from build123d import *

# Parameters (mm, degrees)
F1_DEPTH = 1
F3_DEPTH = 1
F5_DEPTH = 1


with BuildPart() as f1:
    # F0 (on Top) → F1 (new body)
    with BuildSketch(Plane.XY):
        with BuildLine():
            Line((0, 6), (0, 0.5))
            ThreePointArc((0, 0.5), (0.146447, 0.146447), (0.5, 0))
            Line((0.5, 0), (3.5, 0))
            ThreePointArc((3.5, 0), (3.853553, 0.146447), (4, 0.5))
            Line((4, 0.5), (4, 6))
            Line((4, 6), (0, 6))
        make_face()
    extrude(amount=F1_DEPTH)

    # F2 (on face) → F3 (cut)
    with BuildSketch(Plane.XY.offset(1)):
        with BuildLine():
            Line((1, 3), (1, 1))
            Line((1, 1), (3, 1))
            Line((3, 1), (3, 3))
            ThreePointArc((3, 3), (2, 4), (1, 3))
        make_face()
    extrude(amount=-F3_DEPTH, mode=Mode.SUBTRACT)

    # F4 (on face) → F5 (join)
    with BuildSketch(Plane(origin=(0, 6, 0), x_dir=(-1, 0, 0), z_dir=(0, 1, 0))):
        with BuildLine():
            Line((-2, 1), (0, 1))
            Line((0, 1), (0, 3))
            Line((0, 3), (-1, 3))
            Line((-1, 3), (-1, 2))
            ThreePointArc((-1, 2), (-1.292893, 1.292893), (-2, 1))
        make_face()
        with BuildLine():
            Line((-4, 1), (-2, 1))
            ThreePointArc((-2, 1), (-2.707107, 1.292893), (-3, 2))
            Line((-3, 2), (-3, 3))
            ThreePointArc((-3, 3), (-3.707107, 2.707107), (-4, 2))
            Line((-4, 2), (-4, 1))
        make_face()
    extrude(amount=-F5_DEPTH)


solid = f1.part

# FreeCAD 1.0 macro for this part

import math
import FreeCAD as App
import Part
import Sketcher

V = App.Vector
Q = App.Units.Quantity

doc = App.newDocument("Part")
body = doc.addObject("PartDesign::Body", "Body")

sketch1 = body.newObject("Sketcher::SketchObject", "Sketch")
sketch1.AttachmentSupport = (doc.getObject("XY_Plane"), [""])
sketch1.MapMode = "FlatFace"
sketch1.addGeometry(Part.LineSegment(V(0, 6, 0), V(0, 0.5, 0)), False)
sketch1.addGeometry(Part.ArcOfCircle(Part.Circle(V(0.500001, 0.500001, 0), V(0, 0, 1), 0.500001), math.radians(-179.999847), math.radians(-90.000153)), False)
sketch1.addGeometry(Part.LineSegment(V(0.5, 0, 0), V(3.5, 0, 0)), False)
sketch1.addGeometry(Part.ArcOfCircle(Part.Circle(V(3.499999, 0.500001, 0), V(0, 0, 1), 0.500001), math.radians(-89.999847), math.radians(-0.000153)), False)
sketch1.addGeometry(Part.LineSegment(V(4, 0.5, 0), V(4, 6, 0)), False)
sketch1.addGeometry(Part.LineSegment(V(4, 6, 0), V(0, 6, 0)), False)
sketch1.addConstraint(Sketcher.Constraint("Coincident", 0, 2, 1, 1))
sketch1.addConstraint(Sketcher.Constraint("Coincident", 1, 2, 2, 1))
sketch1.addConstraint(Sketcher.Constraint("Coincident", 2, 2, 3, 1))
sketch1.addConstraint(Sketcher.Constraint("Coincident", 3, 2, 4, 1))
sketch1.addConstraint(Sketcher.Constraint("Coincident", 4, 2, 5, 1))
sketch1.addConstraint(Sketcher.Constraint("Coincident", 5, 2, 0, 1))
sketch1.addConstraint(Sketcher.Constraint("Vertical", 0))
sketch1.addConstraint(Sketcher.Constraint("Horizontal", 2))
sketch1.addConstraint(Sketcher.Constraint("Vertical", 4))
sketch1.addConstraint(Sketcher.Constraint("Horizontal", 5))
sketch1.addConstraint(Sketcher.Constraint("Equal", 1, 3))
sketch1.addConstraint(Sketcher.Constraint("PointOnObject", 0, 2, -2))
sketch1.addConstraint(Sketcher.Constraint("PointOnObject", 1, 2, -1))
sketch1.addConstraint(Sketcher.Constraint("Horizontal", 3, 3, 0, 2))
sketch1.addConstraint(Sketcher.Constraint("Horizontal", 0, 2, 3, 2))
sketch1.addConstraint(Sketcher.Constraint("Vertical", 3, 3, 2, 2))
sketch1.addConstraint(Sketcher.Constraint("Radius", 1, Q("0.500001 mm")))
sketch1.addConstraint(Sketcher.Constraint("DistanceX", 2, 1, 2, 2, Q("3 mm")))
sketch1.addConstraint(Sketcher.Constraint("DistanceX", 5, 2, 5, 1, Q("4 mm")))
sketch1.addConstraint(Sketcher.Constraint("DistanceY", 0, 2, 0, 1, Q("5.5 mm")))
pad1 = body.newObject("PartDesign::Pad", "Pad")
pad1.Profile = sketch1
pad1.Length = 1

sketch2 = body.newObject("Sketcher::SketchObject", "Sketch001")
sketch2.AttachmentSupport = (doc.getObject("XY_Plane"), [""])
sketch2.MapMode = "FlatFace"
sketch2.AttachmentOffset = App.Placement(V(0, 0, 1), App.Rotation())
sketch2.addGeometry(Part.LineSegment(V(1, 3, 0), V(1, 1, 0)), False)
sketch2.addGeometry(Part.LineSegment(V(1, 1, 0), V(3, 1, 0)), False)
sketch2.addGeometry(Part.LineSegment(V(3, 1, 0), V(3, 3, 0)), False)
sketch2.addGeometry(Part.ArcOfCircle(Part.Circle(V(2, 3, 0), V(0, 0, 1), 1), math.radians(0), math.radians(180)), False)
sketch2.addConstraint(Sketcher.Constraint("Coincident", 0, 2, 1, 1))
sketch2.addConstraint(Sketcher.Constraint("Coincident", 1, 2, 2, 1))
sketch2.addConstraint(Sketcher.Constraint("Tangent", 2, 2, 3, 1))
sketch2.addConstraint(Sketcher.Constraint("Tangent", 3, 2, 0, 1))
sketch2.addConstraint(Sketcher.Constraint("Vertical", 0))
sketch2.addConstraint(Sketcher.Constraint("Horizontal", 1))
sketch2.addConstraint(Sketcher.Constraint("Vertical", 2))
sketch2.addConstraint(Sketcher.Constraint("Equal", 1, 0))
sketch2.addConstraint(Sketcher.Constraint("Radius", 3, Q("1 mm")))
sketch2.addConstraint(Sketcher.Constraint("DistanceX", -1, 1, 3, 3, Q("2 mm")))
sketch2.addConstraint(Sketcher.Constraint("DistanceY", -1, 1, 3, 3, Q("3 mm")))
pocket1 = body.newObject("PartDesign::Pocket", "Pocket")
pocket1.Profile = sketch2
pocket1.Length = 1

sketch3 = body.newObject("Sketcher::SketchObject", "Sketch002")
sketch3.AttachmentSupport = (doc.getObject("XZ_Plane"), [""])
sketch3.MapMode = "FlatFace"
sketch3.AttachmentOffset = App.Placement(V(0, 0, -6), App.Rotation())
sketch3.addGeometry(Part.LineSegment(V(2, 1, 0), V(0, 1, 0)), False)
sketch3.addGeometry(Part.LineSegment(V(0, 1, 0), V(0, 3, 0)), False)
sketch3.addGeometry(Part.LineSegment(V(0, 3, 0), V(1, 3, 0)), False)
sketch3.addGeometry(Part.LineSegment(V(1, 3, 0), V(1, 2, 0)), False)
sketch3.addGeometry(Part.ArcOfCircle(Part.Circle(V(1.999999, 1.999999, 0), V(0, 0, 1), 0.999999), math.radians(179.999957), math.radians(270.000043)), False)
sketch3.addGeometry(Part.LineSegment(V(4, 1, 0), V(2, 1, 0)), False)
sketch3.addGeometry(Part.ArcOfCircle(Part.Circle(V(2.000001, 1.999999, 0), V(0, 0, 1), 0.999999), math.radians(-90.000043), math.radians(0.000043)), False)
sketch3.addGeometry(Part.LineSegment(V(3, 2, 0), V(3, 3, 0)), False)
sketch3.addGeometry(Part.ArcOfCircle(Part.Circle(V(3.000001, 2.000001, 0), V(0, 0, 1), 0.999999), math.radians(-0.000043), math.radians(90.000043)), False)
sketch3.addGeometry(Part.LineSegment(V(4, 2, 0), V(4, 1, 0)), False)
sketch3.addConstraint(Sketcher.Constraint("Coincident", 0, 2, 1, 1))
sketch3.addConstraint(Sketcher.Constraint("Coincident", 1, 2, 2, 1))
sketch3.addConstraint(Sketcher.Constraint("Coincident", 2, 2, 3, 1))
sketch3.addConstraint(Sketcher.Constraint("Tangent", 3, 2, 4, 1))
sketch3.addConstraint(Sketcher.Constraint("Tangent", 4, 2, 0, 1))
sketch3.addConstraint(Sketcher.Constraint("Tangent", 5, 2, 6, 1))
sketch3.addConstraint(Sketcher.Constraint("Tangent", 6, 2, 7, 1))
sketch3.addConstraint(Sketcher.Constraint("Coincident", 7, 2, 8, 2))
sketch3.addConstraint(Sketcher.Constraint("Tangent", 8, 1, 9, 1))
sketch3.addConstraint(Sketcher.Constraint("Coincident", 9, 2, 5, 1))
sketch3.addConstraint(Sketcher.Constraint("Horizontal", 0))
sketch3.addConstraint(Sketcher.Constraint("Vertical", 1))
sketch3.addConstraint(Sketcher.Constraint("Horizontal", 2))
sketch3.addConstraint(Sketcher.Constraint("Vertical", 3))
sketch3.addConstraint(Sketcher.Constraint("Horizontal", 5))
sketch3.addConstraint(Sketcher.Constraint("Vertical", 7))
sketch3.addConstraint(Sketcher.Constraint("Vertical", 9))
sketch3.addConstraint(Sketcher.Constraint("Coincident", 6, 3, 4, 3))
sketch3.addConstraint(Sketcher.Constraint("Coincident", 6, 2, 8, 3))
sketch3.addConstraint(Sketcher.Constraint("Equal", 4, 6))
sketch3.addConstraint(Sketcher.Constraint("Equal", 6, 8))
sketch3.addConstraint(Sketcher.Constraint("PointOnObject", 0, 2, -2))
sketch3.addConstraint(Sketcher.Constraint("Horizontal", 2, 2, 7, 2))
sketch3.addConstraint(Sketcher.Constraint("Equal", 0, 5))
sketch3.addConstraint(Sketcher.Constraint("Radius", 4, Q("0.999999 mm")))
sketch3.addConstraint(Sketcher.Constraint("DistanceY", -1, 1, 4, 3, Q("1.999999 mm")))
pad2 = body.newObject("PartDesign::Pad", "Pad001")
pad2.Profile = sketch3
pad2.Length = 1

doc.recompute()
